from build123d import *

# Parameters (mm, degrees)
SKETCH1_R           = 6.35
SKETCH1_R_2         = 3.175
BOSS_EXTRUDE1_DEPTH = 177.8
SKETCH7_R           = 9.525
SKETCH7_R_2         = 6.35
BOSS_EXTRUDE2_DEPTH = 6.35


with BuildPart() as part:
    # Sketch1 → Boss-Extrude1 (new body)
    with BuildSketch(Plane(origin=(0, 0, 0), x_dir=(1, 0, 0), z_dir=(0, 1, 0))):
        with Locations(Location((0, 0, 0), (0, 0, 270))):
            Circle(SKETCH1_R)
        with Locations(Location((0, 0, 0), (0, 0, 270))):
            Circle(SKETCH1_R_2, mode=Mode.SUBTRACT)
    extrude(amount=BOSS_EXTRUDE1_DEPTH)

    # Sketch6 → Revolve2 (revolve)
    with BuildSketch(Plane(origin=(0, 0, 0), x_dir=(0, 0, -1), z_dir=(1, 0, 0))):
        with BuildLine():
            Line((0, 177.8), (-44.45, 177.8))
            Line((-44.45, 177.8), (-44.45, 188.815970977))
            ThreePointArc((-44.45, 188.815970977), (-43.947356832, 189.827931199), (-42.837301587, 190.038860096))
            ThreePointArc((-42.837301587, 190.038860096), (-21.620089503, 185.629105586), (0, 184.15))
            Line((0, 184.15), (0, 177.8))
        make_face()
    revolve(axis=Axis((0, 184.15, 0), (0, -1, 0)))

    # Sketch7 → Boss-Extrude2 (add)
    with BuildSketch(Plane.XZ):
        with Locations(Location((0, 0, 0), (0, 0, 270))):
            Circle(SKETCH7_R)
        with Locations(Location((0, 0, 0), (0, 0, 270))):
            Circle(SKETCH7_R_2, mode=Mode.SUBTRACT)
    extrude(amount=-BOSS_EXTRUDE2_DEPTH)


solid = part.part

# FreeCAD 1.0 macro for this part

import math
import FreeCAD as App
import Part
import Sketcher
Q = App.Units.Quantity

doc = App.newDocument("Part")
params = doc.addObject("Spreadsheet::Sheet", "Params")
for row, (alias, value) in enumerate([
    ("sketch1_diameter", "0.5 in"),
    ("sketch1_diameter2", "0.25 in"),
    ("pad1_length", "7 in"),
    ("sketch2_radius", "6.25 in"),
    ("sketch2_radius2", "0.05 in"),
    ("sketch2_width", "0.25 in"),
    ("sketch2_height", "1.75 in"),
    ("revolution_angle", "360 deg"),
    ("sketch3_diameter", "0.5 in"),
    ("sketch3_diameter2", "0.75 in"),
    ("pad2_length", "0.25 in"),
], start=1):
    params.set(f"A{row}", alias)
    params.set(f"B{row}", "=" + value)
    params.setAlias(f"B{row}", alias)

body = doc.addObject("PartDesign::Body", "Body")

sketch1 = body.newObject("Sketcher::SketchObject", "Sketch")
sketch1.AttachmentSupport = (doc.getObject("XZ_Plane"), [""])
sketch1.MapMode = "FlatFace"
sketch1.addGeometry(Part.Circle(App.Vector(0, 0, 0), App.Vector(0, 0, 1), 6.3), False)
sketch1.addGeometry(Part.Circle(App.Vector(0, 0, 0), App.Vector(0, 0, 1), 3.2), False)
sketch1.addConstraint(Sketcher.Constraint("Coincident", 0, 3, -1, 1))
sketch1.addConstraint(Sketcher.Constraint("Coincident", 1, 3, -1, 1))
sketch1.addConstraint(Sketcher.Constraint("Diameter", 0, Q("0.5 in")))
sketch1.addConstraint(Sketcher.Constraint("Diameter", 1, Q("0.25 in")))
sketch1.setExpression("Constraints[2]", "Params.sketch1_diameter")
sketch1.setExpression("Constraints[3]", "Params.sketch1_diameter2")
pad1 = body.newObject("PartDesign::Pad", "Pad")
pad1.Profile = sketch1
pad1.setExpression("Length", "Params.pad1_length")
pad1.Reversed = True

sketch2 = body.newObject("Sketcher::SketchObject", "Sketch001")
sketch2.AttachmentSupport = (doc.getObject("YZ_Plane"), [""])
sketch2.MapMode = "FlatFace"
sketch2.addGeometry(Part.LineSegment(App.Vector(177.8, 44.5, 0), App.Vector(177.8, 0, 0)), False)
sketch2.addGeometry(Part.LineSegment(App.Vector(177.8, 0, 0), App.Vector(184.2, 0, 0)), False)
sketch2.addGeometry(Part.ArcOfCircle(Part.Circle(App.Vector(342.9, 0, 0), App.Vector(0, 0, 1), 158.8), math.radians(164.35), math.radians(180)), False)
sketch2.addGeometry(Part.ArcOfCircle(Part.Circle(App.Vector(188.8, 43.2, 0), App.Vector(0, 0, 1), 1.3), math.radians(-16), math.radians(90)), False)
sketch2.addGeometry(Part.LineSegment(App.Vector(188.8, 44.5, 0), App.Vector(177.8, 44.5, 0)), False)
sketch2.addConstraint(Sketcher.Constraint("Coincident", 0, 2, 1, 1))
sketch2.addConstraint(Sketcher.Constraint("Coincident", 1, 2, 2, 2))
sketch2.addConstraint(Sketcher.Constraint("Tangent", 2, 1, 3, 1))
sketch2.addConstraint(Sketcher.Constraint("Tangent", 3, 2, 4, 1))
sketch2.addConstraint(Sketcher.Constraint("Coincident", 4, 2, 0, 1))
sketch2.addConstraint(Sketcher.Constraint("Vertical", 0))
sketch2.addConstraint(Sketcher.Constraint("Horizontal", 1))
sketch2.addConstraint(Sketcher.Constraint("Horizontal", 4))
sketch2.addConstraint(Sketcher.Constraint("PointOnObject", 2, 3, -1))
sketch2.addConstraint(Sketcher.Constraint("PointOnObject", 0, 2, -1))
sketch2.addConstraint(Sketcher.Constraint("Radius", 2, Q("6.25 in")))
sketch2.addConstraint(Sketcher.Constraint("Radius", 3, Q("0.05 in")))
sketch2.addConstraint(Sketcher.Constraint("DistanceX", -1, 1, 0, 2, Q("7 in")))
sketch2.addConstraint(Sketcher.Constraint("DistanceX", 1, 1, 1, 2, Q("0.25 in")))
sketch2.addConstraint(Sketcher.Constraint("DistanceY", 0, 2, 0, 1, Q("1.75 in")))
sketch2.setExpression("Constraints[10]", "Params.sketch2_radius")
sketch2.setExpression("Constraints[11]", "Params.sketch2_radius2")
sketch2.setExpression("Constraints[13]", "Params.sketch2_width")
sketch2.setExpression("Constraints[14]", "Params.sketch2_height")
revolution = body.newObject("PartDesign::Revolution", "Revolution")
revolution.Profile = sketch2
revolution.ReferenceAxis = (sketch2, ["H_Axis"])
revolution.setExpression("Angle", "Params.revolution_angle")

sketch3 = body.newObject("Sketcher::SketchObject", "Sketch002")
sketch3.AttachmentSupport = (doc.getObject("XZ_Plane"), [""])
sketch3.MapMode = "FlatFace"
sketch3.addGeometry(Part.Circle(App.Vector(0, 0, 0), App.Vector(0, 0, 1), 10), False)
sketch3.addGeometry(Part.Circle(App.Vector(0, 0, 0), App.Vector(0, 0, 1), 6), False)
sketch3.addConstraint(Sketcher.Constraint("Coincident", 0, 3, -1, 1))
sketch3.addConstraint(Sketcher.Constraint("Coincident", 1, 3, -1, 1))
sketch3.addConstraint(Sketcher.Constraint("Diameter", 1, Q("0.5 in")))
sketch3.addConstraint(Sketcher.Constraint("Diameter", 0, Q("0.75 in")))
sketch3.setExpression("Constraints[2]", "Params.sketch3_diameter")
sketch3.setExpression("Constraints[3]", "Params.sketch3_diameter2")
pad2 = body.newObject("PartDesign::Pad", "Pad001")
pad2.Profile = sketch3
pad2.setExpression("Length", "Params.pad2_length")
pad2.Reversed = True

doc.recompute()
